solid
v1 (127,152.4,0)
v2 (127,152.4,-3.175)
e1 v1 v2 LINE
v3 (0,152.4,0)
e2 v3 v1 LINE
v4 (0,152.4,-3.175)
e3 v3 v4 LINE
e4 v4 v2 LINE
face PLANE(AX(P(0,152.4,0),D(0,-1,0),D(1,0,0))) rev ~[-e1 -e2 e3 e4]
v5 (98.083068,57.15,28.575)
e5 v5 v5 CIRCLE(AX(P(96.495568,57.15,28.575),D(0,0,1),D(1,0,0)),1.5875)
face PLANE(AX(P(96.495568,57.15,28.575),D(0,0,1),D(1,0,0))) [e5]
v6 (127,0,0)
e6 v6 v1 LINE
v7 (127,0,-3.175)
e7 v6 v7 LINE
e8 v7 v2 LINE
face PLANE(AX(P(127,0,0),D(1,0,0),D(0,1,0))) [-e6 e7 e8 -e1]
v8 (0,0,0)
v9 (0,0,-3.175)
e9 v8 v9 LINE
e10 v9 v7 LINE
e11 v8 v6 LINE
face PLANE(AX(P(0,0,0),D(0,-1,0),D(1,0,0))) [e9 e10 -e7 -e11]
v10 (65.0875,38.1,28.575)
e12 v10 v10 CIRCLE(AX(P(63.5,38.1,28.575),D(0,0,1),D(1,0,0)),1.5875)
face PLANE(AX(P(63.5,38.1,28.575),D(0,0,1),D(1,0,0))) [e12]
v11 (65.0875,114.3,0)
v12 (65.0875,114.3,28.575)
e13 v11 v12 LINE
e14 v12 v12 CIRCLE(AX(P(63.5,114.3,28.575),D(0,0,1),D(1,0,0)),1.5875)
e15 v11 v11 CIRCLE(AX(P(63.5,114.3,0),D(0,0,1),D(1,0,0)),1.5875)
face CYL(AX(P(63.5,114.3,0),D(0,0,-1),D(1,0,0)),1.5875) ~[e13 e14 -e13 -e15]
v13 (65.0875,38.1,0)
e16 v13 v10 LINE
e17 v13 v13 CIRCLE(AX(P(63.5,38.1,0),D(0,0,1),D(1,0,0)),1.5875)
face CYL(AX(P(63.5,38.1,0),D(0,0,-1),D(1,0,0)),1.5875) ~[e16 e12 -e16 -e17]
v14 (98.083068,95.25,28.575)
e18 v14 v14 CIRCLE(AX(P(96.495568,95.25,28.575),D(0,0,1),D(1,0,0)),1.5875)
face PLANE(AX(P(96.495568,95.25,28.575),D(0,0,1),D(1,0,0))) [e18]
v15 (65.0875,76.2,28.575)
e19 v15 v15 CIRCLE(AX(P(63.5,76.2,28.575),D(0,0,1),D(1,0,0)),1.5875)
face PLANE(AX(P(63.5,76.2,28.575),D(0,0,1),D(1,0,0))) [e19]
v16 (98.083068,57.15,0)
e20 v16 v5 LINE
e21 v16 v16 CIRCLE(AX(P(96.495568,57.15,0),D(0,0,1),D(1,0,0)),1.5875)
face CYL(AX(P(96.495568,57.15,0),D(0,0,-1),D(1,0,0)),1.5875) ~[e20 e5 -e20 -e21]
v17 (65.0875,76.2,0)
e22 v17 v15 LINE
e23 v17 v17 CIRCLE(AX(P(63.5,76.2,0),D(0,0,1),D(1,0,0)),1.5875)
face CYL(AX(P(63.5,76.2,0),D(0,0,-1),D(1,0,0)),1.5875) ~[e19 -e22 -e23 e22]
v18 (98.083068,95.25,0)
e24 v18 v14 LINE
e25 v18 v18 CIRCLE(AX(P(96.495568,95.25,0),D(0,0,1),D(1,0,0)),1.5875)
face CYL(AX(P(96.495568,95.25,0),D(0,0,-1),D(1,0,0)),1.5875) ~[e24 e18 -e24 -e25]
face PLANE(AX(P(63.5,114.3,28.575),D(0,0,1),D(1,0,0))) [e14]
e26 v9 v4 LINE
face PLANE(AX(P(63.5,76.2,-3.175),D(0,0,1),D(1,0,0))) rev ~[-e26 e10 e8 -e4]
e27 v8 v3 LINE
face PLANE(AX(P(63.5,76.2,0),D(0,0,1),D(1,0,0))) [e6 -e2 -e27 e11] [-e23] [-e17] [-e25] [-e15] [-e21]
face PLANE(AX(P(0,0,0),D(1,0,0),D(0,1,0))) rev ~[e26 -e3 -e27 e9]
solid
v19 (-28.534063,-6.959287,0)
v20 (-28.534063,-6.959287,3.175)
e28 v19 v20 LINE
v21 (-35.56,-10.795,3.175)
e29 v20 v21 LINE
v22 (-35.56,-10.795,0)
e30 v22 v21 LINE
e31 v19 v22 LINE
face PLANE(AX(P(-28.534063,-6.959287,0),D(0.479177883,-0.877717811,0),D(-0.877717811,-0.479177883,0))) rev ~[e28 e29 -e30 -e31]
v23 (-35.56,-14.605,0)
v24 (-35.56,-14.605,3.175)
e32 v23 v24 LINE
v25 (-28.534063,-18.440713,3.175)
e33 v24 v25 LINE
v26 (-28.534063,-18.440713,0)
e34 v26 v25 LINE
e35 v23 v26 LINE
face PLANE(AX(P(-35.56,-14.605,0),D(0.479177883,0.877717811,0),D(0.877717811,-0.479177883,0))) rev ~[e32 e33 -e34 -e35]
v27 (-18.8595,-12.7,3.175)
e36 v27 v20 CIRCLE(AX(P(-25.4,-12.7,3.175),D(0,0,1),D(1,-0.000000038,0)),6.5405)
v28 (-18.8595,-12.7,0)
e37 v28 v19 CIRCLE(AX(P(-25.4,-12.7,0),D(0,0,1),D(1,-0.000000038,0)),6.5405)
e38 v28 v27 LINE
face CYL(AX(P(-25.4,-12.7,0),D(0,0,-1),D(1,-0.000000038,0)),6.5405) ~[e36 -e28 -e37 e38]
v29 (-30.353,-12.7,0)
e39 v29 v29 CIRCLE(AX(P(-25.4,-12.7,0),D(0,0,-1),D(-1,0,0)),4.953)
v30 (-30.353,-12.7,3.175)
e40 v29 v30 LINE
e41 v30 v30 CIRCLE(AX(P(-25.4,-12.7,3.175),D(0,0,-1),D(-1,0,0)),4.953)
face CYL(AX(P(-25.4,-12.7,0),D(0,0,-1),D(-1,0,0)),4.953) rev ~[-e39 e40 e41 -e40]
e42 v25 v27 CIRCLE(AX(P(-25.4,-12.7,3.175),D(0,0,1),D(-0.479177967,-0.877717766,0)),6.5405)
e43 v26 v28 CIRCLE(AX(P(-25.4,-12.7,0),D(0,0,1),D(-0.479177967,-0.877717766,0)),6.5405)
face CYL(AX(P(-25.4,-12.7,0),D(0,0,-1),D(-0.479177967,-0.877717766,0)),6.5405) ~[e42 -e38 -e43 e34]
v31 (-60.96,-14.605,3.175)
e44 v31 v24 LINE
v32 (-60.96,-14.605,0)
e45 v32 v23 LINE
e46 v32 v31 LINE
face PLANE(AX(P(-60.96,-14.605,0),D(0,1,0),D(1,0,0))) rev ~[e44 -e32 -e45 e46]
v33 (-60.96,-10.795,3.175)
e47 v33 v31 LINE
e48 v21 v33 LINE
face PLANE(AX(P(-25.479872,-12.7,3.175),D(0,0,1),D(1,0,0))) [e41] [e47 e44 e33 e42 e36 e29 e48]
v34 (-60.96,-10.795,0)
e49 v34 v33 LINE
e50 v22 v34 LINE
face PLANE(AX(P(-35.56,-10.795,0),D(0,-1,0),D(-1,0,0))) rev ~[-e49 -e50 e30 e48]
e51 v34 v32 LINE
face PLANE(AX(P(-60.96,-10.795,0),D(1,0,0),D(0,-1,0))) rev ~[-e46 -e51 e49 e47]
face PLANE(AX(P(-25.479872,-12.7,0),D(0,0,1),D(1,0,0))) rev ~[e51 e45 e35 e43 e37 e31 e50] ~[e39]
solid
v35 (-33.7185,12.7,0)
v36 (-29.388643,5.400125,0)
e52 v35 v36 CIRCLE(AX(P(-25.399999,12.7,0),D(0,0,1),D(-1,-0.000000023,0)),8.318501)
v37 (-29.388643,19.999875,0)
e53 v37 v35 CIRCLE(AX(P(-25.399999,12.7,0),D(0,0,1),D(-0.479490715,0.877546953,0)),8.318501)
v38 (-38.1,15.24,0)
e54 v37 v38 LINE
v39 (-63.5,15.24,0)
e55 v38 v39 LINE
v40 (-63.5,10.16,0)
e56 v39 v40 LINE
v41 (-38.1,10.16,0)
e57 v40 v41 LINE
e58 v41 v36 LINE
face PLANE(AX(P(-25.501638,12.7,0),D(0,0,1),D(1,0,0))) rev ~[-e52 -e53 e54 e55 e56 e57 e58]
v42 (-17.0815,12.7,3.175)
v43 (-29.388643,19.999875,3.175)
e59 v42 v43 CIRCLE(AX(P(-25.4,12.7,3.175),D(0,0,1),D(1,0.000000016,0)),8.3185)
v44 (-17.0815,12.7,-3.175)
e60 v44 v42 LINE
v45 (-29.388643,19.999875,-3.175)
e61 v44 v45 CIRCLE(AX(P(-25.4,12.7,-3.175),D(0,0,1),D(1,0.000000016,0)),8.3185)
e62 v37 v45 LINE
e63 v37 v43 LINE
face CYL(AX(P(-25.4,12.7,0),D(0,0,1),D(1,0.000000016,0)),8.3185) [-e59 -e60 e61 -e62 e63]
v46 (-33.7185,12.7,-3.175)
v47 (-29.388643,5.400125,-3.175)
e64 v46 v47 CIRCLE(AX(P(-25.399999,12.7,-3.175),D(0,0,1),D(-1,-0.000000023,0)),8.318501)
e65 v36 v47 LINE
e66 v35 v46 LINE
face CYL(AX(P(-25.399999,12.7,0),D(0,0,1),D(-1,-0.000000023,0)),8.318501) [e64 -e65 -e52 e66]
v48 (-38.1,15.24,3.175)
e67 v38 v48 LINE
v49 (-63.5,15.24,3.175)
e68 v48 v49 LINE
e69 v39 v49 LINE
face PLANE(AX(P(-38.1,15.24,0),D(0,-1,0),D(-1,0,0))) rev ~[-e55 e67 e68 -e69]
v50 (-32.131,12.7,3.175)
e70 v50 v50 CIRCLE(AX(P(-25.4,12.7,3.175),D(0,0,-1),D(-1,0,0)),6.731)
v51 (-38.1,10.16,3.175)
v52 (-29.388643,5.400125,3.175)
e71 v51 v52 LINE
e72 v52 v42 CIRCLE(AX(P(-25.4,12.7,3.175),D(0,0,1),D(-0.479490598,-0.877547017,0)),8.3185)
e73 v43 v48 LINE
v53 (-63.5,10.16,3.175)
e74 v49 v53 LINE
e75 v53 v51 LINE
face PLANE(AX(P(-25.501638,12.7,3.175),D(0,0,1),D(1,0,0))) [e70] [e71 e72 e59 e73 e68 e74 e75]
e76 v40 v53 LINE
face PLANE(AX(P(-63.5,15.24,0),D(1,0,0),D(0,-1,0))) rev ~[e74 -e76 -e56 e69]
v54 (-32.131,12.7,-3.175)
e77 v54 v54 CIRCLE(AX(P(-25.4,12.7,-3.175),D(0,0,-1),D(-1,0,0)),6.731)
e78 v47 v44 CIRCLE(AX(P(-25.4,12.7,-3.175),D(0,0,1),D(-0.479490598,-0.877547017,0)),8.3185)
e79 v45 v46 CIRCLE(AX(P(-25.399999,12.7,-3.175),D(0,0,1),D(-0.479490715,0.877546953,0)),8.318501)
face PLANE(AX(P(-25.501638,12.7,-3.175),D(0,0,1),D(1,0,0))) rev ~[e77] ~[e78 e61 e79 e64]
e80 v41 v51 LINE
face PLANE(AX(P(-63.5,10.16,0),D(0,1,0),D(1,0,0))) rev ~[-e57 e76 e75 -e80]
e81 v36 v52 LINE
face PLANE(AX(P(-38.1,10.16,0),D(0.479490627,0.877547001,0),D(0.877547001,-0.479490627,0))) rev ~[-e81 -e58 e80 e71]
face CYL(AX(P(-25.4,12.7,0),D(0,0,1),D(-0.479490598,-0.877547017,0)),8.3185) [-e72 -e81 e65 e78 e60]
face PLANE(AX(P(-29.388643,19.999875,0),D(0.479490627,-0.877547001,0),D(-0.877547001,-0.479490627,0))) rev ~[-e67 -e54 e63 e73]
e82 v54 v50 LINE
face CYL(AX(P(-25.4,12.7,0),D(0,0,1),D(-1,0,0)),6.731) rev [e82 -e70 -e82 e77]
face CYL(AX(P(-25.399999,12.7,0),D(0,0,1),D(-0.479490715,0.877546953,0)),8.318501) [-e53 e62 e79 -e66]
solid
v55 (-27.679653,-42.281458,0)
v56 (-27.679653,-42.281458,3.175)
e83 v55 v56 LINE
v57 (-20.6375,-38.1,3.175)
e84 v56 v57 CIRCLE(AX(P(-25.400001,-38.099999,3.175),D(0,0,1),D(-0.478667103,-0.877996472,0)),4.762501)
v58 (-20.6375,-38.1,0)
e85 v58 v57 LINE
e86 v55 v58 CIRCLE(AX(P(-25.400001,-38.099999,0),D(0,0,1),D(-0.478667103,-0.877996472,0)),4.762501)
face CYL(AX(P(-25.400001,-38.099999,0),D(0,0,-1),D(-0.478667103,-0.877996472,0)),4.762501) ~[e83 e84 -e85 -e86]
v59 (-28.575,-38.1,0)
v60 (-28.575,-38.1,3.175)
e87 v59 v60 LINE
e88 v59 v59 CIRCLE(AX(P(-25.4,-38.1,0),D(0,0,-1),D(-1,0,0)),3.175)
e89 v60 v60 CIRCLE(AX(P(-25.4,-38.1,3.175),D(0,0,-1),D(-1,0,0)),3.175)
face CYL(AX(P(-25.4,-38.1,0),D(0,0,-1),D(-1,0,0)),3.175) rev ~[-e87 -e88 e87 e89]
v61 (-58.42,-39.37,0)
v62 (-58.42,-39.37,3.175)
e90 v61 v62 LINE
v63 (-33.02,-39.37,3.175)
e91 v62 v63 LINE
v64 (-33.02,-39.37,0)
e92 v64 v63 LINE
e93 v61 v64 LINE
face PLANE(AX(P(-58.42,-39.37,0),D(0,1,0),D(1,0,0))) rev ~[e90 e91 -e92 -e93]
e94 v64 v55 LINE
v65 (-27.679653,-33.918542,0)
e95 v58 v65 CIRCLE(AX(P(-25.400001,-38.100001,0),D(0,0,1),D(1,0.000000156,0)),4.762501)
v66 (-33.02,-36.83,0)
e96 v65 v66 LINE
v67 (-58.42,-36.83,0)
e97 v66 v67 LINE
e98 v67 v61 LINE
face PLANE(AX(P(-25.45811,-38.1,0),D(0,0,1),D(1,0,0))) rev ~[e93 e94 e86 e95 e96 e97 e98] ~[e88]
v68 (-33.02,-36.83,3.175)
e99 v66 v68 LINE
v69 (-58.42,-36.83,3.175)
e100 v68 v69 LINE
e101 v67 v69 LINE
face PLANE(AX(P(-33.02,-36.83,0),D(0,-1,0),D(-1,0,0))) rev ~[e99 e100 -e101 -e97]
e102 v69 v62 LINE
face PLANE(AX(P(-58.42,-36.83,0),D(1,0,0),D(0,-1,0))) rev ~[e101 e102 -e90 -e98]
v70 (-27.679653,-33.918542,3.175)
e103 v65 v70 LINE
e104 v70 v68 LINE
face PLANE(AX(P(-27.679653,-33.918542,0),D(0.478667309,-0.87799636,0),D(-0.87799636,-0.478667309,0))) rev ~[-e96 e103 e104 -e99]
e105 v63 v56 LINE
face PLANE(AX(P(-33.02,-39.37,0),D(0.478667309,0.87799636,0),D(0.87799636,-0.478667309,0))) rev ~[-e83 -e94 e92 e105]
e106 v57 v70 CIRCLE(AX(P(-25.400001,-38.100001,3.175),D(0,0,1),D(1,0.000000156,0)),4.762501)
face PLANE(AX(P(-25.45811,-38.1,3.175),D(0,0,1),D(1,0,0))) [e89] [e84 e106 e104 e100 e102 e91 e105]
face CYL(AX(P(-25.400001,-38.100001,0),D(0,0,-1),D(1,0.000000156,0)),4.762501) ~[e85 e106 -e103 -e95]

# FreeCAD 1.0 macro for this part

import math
import FreeCAD as App
import Part
import Sketcher
from FreeCAD import Vector
Q = App.Units.Quantity

doc = App.newDocument("Part")
body = doc.addObject("PartDesign::Body", "Body")

# Sketch on XY plane
sketch1 = body.newObject("Sketcher::SketchObject", "Sketch")
sketch1.AttachmentSupport = (doc.getObject("XY_Plane"), [""])
sketch1.MapMode = "FlatFace"
sketch1.addGeometry(Part.LineSegment(Vector(0, 152, 0), Vector(0, 0, 0)), False)
sketch1.addGeometry(Part.LineSegment(Vector(0, 0, 0), Vector(127, 0, 0)), False)
sketch1.addGeometry(Part.LineSegment(Vector(127, 0, 0), Vector(127, 152, 0)), False)
sketch1.addGeometry(Part.LineSegment(Vector(127, 152, 0), Vector(0, 152, 0)), False)
sketch1.addConstraint(Sketcher.Constraint("Coincident", 0, 2, 1, 1))
sketch1.addConstraint(Sketcher.Constraint("Coincident", 1, 2, 2, 1))
sketch1.addConstraint(Sketcher.Constraint("Coincident", 2, 2, 3, 1))
sketch1.addConstraint(Sketcher.Constraint("Coincident", 3, 2, 0, 1))
sketch1.addConstraint(Sketcher.Constraint("Vertical", 0))
sketch1.addConstraint(Sketcher.Constraint("Horizontal", 1))
sketch1.addConstraint(Sketcher.Constraint("Vertical", 2))
sketch1.addConstraint(Sketcher.Constraint("Horizontal", 3))
sketch1.addConstraint(Sketcher.Constraint("Coincident", 0, 2, -1, 1))
sketch1.addConstraint(Sketcher.Constraint("DistanceX", 1, 1, 1, 2, Q("5 in")))
sketch1.addConstraint(Sketcher.Constraint("DistanceY", 0, 2, 0, 1, Q("6 in")))
pad1 = body.newObject("PartDesign::Pad", "Pad")
pad1.Profile = sketch1
pad1.Length = Q("0.125 in")
pad1.Reversed = True

# Sketch on XY plane
sketch2 = body.newObject("Sketcher::SketchObject", "Sketch001")
sketch2.AttachmentSupport = (doc.getObject("XY_Plane"), [""])
sketch2.MapMode = "FlatFace"
sketch2.addGeometry(Part.Circle(Vector(63.5, 114.3, 0), Vector(0, 0, 1), 1.6), False)
sketch2.addGeometry(Part.Circle(Vector(96.5, 95.2, 0), Vector(0, 0, 1), 1.6), False)
sketch2.addGeometry(Part.Circle(Vector(63.5, 76.2, 0), Vector(0, 0, 1), 1.6), False)
sketch2.addGeometry(Part.Circle(Vector(96.5, 57.1, 0), Vector(0, 0, 1), 1.6), False)
sketch2.addGeometry(Part.Circle(Vector(63.5, 38.1, 0), Vector(0, 0, 1), 1.6), False)
sketch2.addConstraint(Sketcher.Constraint("Equal", 0, 1))
sketch2.addConstraint(Sketcher.Constraint("Equal", 1, 2))
sketch2.addConstraint(Sketcher.Constraint("Equal", 2, 3))
sketch2.addConstraint(Sketcher.Constraint("Equal", 3, 4))
sketch2.addConstraint(Sketcher.Constraint("Vertical", 0, 3, 2, 3))
sketch2.addConstraint(Sketcher.Constraint("Vertical", 1, 3, 3, 3))
sketch2.addConstraint(Sketcher.Constraint("Vertical", 2, 3, 4, 3))
sketch2.addConstraint(Sketcher.Constraint("Diameter", 0, Q("0.125 in")))
sketch2.addConstraint(Sketcher.Constraint("DistanceY", -1, 1, 2, 3, Q("3 in")))
sketch2.addConstraint(Sketcher.Constraint("DistanceY", 4, 3, 0, 3, Q("3 in")))
sketch2.addConstraint(Sketcher.Constraint("DistanceX", -1, 1, 0, 3, Q("2.5 in")))
sketch2.addConstraint(Sketcher.Constraint("DistanceY", -1, 1, 0, 3, Q("4.5 in")))
sketch2.addConstraint(Sketcher.Constraint("DistanceY", 3, 3, 1, 3, Q("1.5 in")))
sketch2.addConstraint(Sketcher.Constraint("DistanceY", -1, 1, 1, 3, Q("3.75 in")))
sketch2.addConstraint(Sketcher.Constraint("DistanceX", -1, 1, 1, 3, Q("96.495568 mm")))
pad2 = body.newObject("PartDesign::Pad", "Pad001")
pad2.Profile = sketch2
pad2.Length = Q("1.125 in")
body2 = doc.addObject("PartDesign::Body", "Body001")

# Sketch on XY plane
sketch3 = body2.newObject("Sketcher::SketchObject", "Sketch002")
sketch3.AttachmentSupport = (doc.getObject("XY_Plane001"), [""])
sketch3.MapMode = "FlatFace"
sketch3.addGeometry(Part.ArcOfCircle(Part.Circle(Vector(-25, 13, 0), Vector(0, 0, 1), 8), math.radians(-119), math.radians(0)), False)
sketch3.addGeometry(Part.ArcOfCircle(Part.Circle(Vector(-25, 13, 0), Vector(0, 0, 1), 8), math.radians(0), math.radians(119)), False)
sketch3.addGeometry(Part.LineSegment(Vector(-29, 20, 0), Vector(-38, 15, 0)), False)
sketch3.addGeometry(Part.LineSegment(Vector(-38, 15, 0), Vector(-64, 15, 0)), False)
sketch3.addGeometry(Part.LineSegment(Vector(-64, 15, 0), Vector(-64, 10, 0)), False)
sketch3.addGeometry(Part.LineSegment(Vector(-64, 10, 0), Vector(-38, 10, 0)), False)
sketch3.addGeometry(Part.LineSegment(Vector(-38, 10, 0), Vector(-29, 5, 0)), False)
sketch3.addGeometry(Part.Circle(Vector(-25, 13, 0), Vector(0, 0, 1), 7), False)
sketch3.addConstraint(Sketcher.Constraint("Tangent", 0, 2, 1, 1))
sketch3.addConstraint(Sketcher.Constraint("Tangent", 1, 2, 2, 1))
sketch3.addConstraint(Sketcher.Constraint("Coincident", 2, 2, 3, 1))
sketch3.addConstraint(Sketcher.Constraint("Coincident", 3, 2, 4, 1))
sketch3.addConstraint(Sketcher.Constraint("Coincident", 4, 2, 5, 1))
sketch3.addConstraint(Sketcher.Constraint("Coincident", 5, 2, 6, 1))
sketch3.addConstraint(Sketcher.Constraint("Tangent", 6, 2, 0, 1))
sketch3.addConstraint(Sketcher.Constraint("Horizontal", 3))
sketch3.addConstraint(Sketcher.Constraint("Vertical", 4))
sketch3.addConstraint(Sketcher.Constraint("Horizontal", 5))
sketch3.addConstraint(Sketcher.Constraint("Coincident", 7, 3, 0, 3))
sketch3.addConstraint(Sketcher.Constraint("Equal", 0, 1))
sketch3.addConstraint(Sketcher.Constraint("Horizontal", 7, 3, 0, 2))
sketch3.addConstraint(Sketcher.Constraint("Vertical", 2, 2, 5, 2))
sketch3.addConstraint(Sketcher.Constraint("Vertical", 1, 2, 6, 2))
sketch3.addConstraint(Sketcher.Constraint("Diameter", 7, Q("0.53 in")))
sketch3.addConstraint(Sketcher.Constraint("DistanceX", 3, 2, 3, 1, Q("1 in")))
sketch3.addConstraint(Sketcher.Constraint("DistanceY", 4, 2, 4, 1, Q("0.2 in")))
sketch3.addConstraint(Sketcher.Constraint("DistanceX", 0, 3, -1, 1, Q("1 in")))
sketch3.addConstraint(Sketcher.Constraint("DistanceY", -1, 1, 0, 3, Q("0.5 in")))
sketch3.addConstraint(Sketcher.Constraint("DistanceX", 2, 2, -1, 1, Q("1.5 in")))
sketch3.addConstraint(Sketcher.Constraint("Radius", 0, Q("0.3275 in")))
pad3 = body2.newObject("PartDesign::Pad", "Pad002")
pad3.Profile = sketch3
pad3.Length = Q("0.125 in")

# Sketch on XY plane
sketch4 = body2.newObject("Sketcher::SketchObject", "Sketch003")
sketch4.AttachmentSupport = (doc.getObject("XY_Plane001"), [""])
sketch4.MapMode = "FlatFace"
sketch4.addGeometry(Part.ArcOfCircle(Part.Circle(Vector(-25, 13, 0), Vector(0, 0, 1), 8), math.radians(-119), math.radians(0)), False)
sketch4.addGeometry(Part.ArcOfCircle(Part.Circle(Vector(-25, 13, 0), Vector(0, 0, 1), 8), math.radians(0), math.radians(119)), False)
sketch4.addGeometry(Part.ArcOfCircle(Part.Circle(Vector(-25, 13, 0), Vector(0, 0, 1), 8), math.radians(119), math.radians(180)), False)
sketch4.addGeometry(Part.ArcOfCircle(Part.Circle(Vector(-25, 13, 0), Vector(0, 0, 1), 8), math.radians(-180), math.radians(-119)), False)
sketch4.addGeometry(Part.Circle(Vector(-25, 13, 0), Vector(0, 0, 1), 7), False)
sketch4.addConstraint(Sketcher.Constraint("Tangent", 0, 2, 1, 1))
sketch4.addConstraint(Sketcher.Constraint("Tangent", 1, 2, 2, 1))
sketch4.addConstraint(Sketcher.Constraint("Tangent", 2, 2, 3, 1))
sketch4.addConstraint(Sketcher.Constraint("Tangent", 3, 2, 0, 1))
sketch4.addConstraint(Sketcher.Constraint("Coincident", 4, 3, 0, 3))
sketch4.addConstraint(Sketcher.Constraint("Equal", 0, 1))
sketch4.addConstraint(Sketcher.Constraint("Horizontal", 4, 3, 0, 2))
sketch4.addConstraint(Sketcher.Constraint("Horizontal", 0, 2, 2, 2))
sketch4.addConstraint(Sketcher.Constraint("Vertical", 1, 2, 3, 2))
sketch4.addConstraint(Sketcher.Constraint("Diameter", 4, Q("0.53 in")))
sketch4.addConstraint(Sketcher.Constraint("DistanceX", 0, 3, -1, 1, Q("1 in")))
sketch4.addConstraint(Sketcher.Constraint("DistanceY", -1, 1, 0, 3, Q("0.5 in")))
sketch4.addConstraint(Sketcher.Constraint("Radius", 0, Q("0.3275 in")))
sketch4.addConstraint(Sketcher.Constraint("DistanceX", 1, 2, -1, 1, Q("29.388643 mm")))
pad4 = body2.newObject("PartDesign::Pad", "Pad003")
pad4.Profile = sketch4
pad4.Length = Q("0.125 in")
pad4.Reversed = True
body3 = doc.addObject("PartDesign::Body", "Body002")

# Sketch on XY plane
sketch5 = body3.newObject("Sketcher::SketchObject", "Sketch004")
sketch5.AttachmentSupport = (doc.getObject("XY_Plane002"), [""])
sketch5.MapMode = "FlatFace"
sketch5.addGeometry(Part.ArcOfCircle(Part.Circle(Vector(-25.4, -12.7, 0), Vector(0, 0, 1), 6.5), math.radians(-119), math.radians(0)), False)
sketch5.addGeometry(Part.ArcOfCircle(Part.Circle(Vector(-25.4, -12.7, 0), Vector(0, 0, 1), 6.5), math.radians(0), math.radians(119)), False)
sketch5.addGeometry(Part.LineSegment(Vector(-28.5, -7, 0), Vector(-35.6, -10.8, 0)), False)
sketch5.addGeometry(Part.LineSegment(Vector(-35.6, -10.8, 0), Vector(-61, -10.8, 0)), False)
sketch5.addGeometry(Part.LineSegment(Vector(-61, -10.8, 0), Vector(-61, -14.6, 0)), False)
sketch5.addGeometry(Part.LineSegment(Vector(-61, -14.6, 0), Vector(-35.6, -14.6, 0)), False)
sketch5.addGeometry(Part.LineSegment(Vector(-35.6, -14.6, 0), Vector(-28.5, -18.4, 0)), False)
sketch5.addGeometry(Part.Circle(Vector(-25.4, -12.7, 0), Vector(0, 0, 1), 5), False)
sketch5.addConstraint(Sketcher.Constraint("Tangent", 0, 2, 1, 1))
sketch5.addConstraint(Sketcher.Constraint("Tangent", 1, 2, 2, 1))
sketch5.addConstraint(Sketcher.Constraint("Coincident", 2, 2, 3, 1))
sketch5.addConstraint(Sketcher.Constraint("Coincident", 3, 2, 4, 1))
sketch5.addConstraint(Sketcher.Constraint("Coincident", 4, 2, 5, 1))
sketch5.addConstraint(Sketcher.Constraint("Coincident", 5, 2, 6, 1))
sketch5.addConstraint(Sketcher.Constraint("Tangent", 6, 2, 0, 1))
sketch5.addConstraint(Sketcher.Constraint("Horizontal", 3))
sketch5.addConstraint(Sketcher.Constraint("Vertical", 4))
sketch5.addConstraint(Sketcher.Constraint("Horizontal", 5))
sketch5.addConstraint(Sketcher.Constraint("Coincident", 7, 3, 0, 3))
sketch5.addConstraint(Sketcher.Constraint("Equal", 0, 1))
sketch5.addConstraint(Sketcher.Constraint("Horizontal", 7, 3, 0, 2))
sketch5.addConstraint(Sketcher.Constraint("Vertical", 2, 2, 5, 2))
sketch5.addConstraint(Sketcher.Constraint("Vertical", 1, 2, 6, 2))
sketch5.addConstraint(Sketcher.Constraint("Diameter", 7, Q("0.39 in")))
sketch5.addConstraint(Sketcher.Constraint("DistanceX", 3, 2, 3, 1, Q("1 in")))
sketch5.addConstraint(Sketcher.Constraint("DistanceX", 0, 3, -1, 1, Q("1 in")))
sketch5.addConstraint(Sketcher.Constraint("DistanceY", 4, 2, 4, 1, Q("0.15 in")))
sketch5.addConstraint(Sketcher.Constraint("DistanceY", 0, 3, -1, 1, Q("0.5 in")))
sketch5.addConstraint(Sketcher.Constraint("DistanceX", 2, 2, -1, 1, Q("1.4 in")))
sketch5.addConstraint(Sketcher.Constraint("Radius", 0, Q("0.2575 in")))
pad5 = body3.newObject("PartDesign::Pad", "Pad004")
pad5.Profile = sketch5
pad5.Length = Q("0.125 in")
body4 = doc.addObject("PartDesign::Body", "Body003")

# Sketch on XY plane
sketch6 = body4.newObject("Sketcher::SketchObject", "Sketch005")
sketch6.AttachmentSupport = (doc.getObject("XY_Plane003"), [""])
sketch6.MapMode = "FlatFace"
sketch6.addGeometry(Part.ArcOfCircle(Part.Circle(Vector(-25.4, -38.1, 0), Vector(0, 0, 1), 4.8), math.radians(-119), math.radians(0)), False)
sketch6.addGeometry(Part.ArcOfCircle(Part.Circle(Vector(-25.4, -38.1, 0), Vector(0, 0, 1), 4.8), math.radians(0), math.radians(119)), False)
sketch6.addGeometry(Part.LineSegment(Vector(-27.7, -33.9, 0), Vector(-33, -36.8, 0)), False)
sketch6.addGeometry(Part.LineSegment(Vector(-33, -36.8, 0), Vector(-58.4, -36.8, 0)), False)
sketch6.addGeometry(Part.LineSegment(Vector(-58.4, -36.8, 0), Vector(-58.4, -39.4, 0)), False)
sketch6.addGeometry(Part.LineSegment(Vector(-58.4, -39.4, 0), Vector(-33, -39.4, 0)), False)
sketch6.addGeometry(Part.LineSegment(Vector(-33, -39.4, 0), Vector(-27.7, -42.3, 0)), False)
sketch6.addGeometry(Part.Circle(Vector(-25.4, -38.1, 0), Vector(0, 0, 1), 3.2), False)
sketch6.addConstraint(Sketcher.Constraint("Tangent", 0, 2, 1, 1))
sketch6.addConstraint(Sketcher.Constraint("Tangent", 1, 2, 2, 1))
sketch6.addConstraint(Sketcher.Constraint("Coincident", 2, 2, 3, 1))
sketch6.addConstraint(Sketcher.Constraint("Coincident", 3, 2, 4, 1))
sketch6.addConstraint(Sketcher.Constraint("Coincident", 4, 2, 5, 1))
sketch6.addConstraint(Sketcher.Constraint("Coincident", 5, 2, 6, 1))
sketch6.addConstraint(Sketcher.Constraint("Tangent", 6, 2, 0, 1))
sketch6.addConstraint(Sketcher.Constraint("Horizontal", 3))
sketch6.addConstraint(Sketcher.Constraint("Vertical", 4))
sketch6.addConstraint(Sketcher.Constraint("Horizontal", 5))
sketch6.addConstraint(Sketcher.Constraint("Coincident", 7, 3, 0, 3))
sketch6.addConstraint(Sketcher.Constraint("Equal", 0, 1))
sketch6.addConstraint(Sketcher.Constraint("Horizontal", 7, 3, 0, 2))
sketch6.addConstraint(Sketcher.Constraint("Vertical", 2, 2, 5, 2))
sketch6.addConstraint(Sketcher.Constraint("Vertical", 1, 2, 6, 2))
sketch6.addConstraint(Sketcher.Constraint("Diameter", 7, Q("0.25 in")))
sketch6.addConstraint(Sketcher.Constraint("DistanceX", 3, 2, 3, 1, Q("1 in")))
sketch6.addConstraint(Sketcher.Constraint("DistanceY", 4, 2, 4, 1, Q("0.1 in")))
sketch6.addConstraint(Sketcher.Constraint("DistanceX", 0, 3, -1, 1, Q("1 in")))
sketch6.addConstraint(Sketcher.Constraint("Radius", 0, Q("0.1875 in")))
sketch6.addConstraint(Sketcher.Constraint("DistanceY", 0, 3, -1, 1, Q("1.5 in")))
sketch6.addConstraint(Sketcher.Constraint("DistanceX", 2, 2, -1, 1, Q("1.3 in")))
pad6 = body4.newObject("PartDesign::Pad", "Pad005")
pad6.Profile = sketch6
pad6.Length = Q("0.125 in")

doc.recompute()
